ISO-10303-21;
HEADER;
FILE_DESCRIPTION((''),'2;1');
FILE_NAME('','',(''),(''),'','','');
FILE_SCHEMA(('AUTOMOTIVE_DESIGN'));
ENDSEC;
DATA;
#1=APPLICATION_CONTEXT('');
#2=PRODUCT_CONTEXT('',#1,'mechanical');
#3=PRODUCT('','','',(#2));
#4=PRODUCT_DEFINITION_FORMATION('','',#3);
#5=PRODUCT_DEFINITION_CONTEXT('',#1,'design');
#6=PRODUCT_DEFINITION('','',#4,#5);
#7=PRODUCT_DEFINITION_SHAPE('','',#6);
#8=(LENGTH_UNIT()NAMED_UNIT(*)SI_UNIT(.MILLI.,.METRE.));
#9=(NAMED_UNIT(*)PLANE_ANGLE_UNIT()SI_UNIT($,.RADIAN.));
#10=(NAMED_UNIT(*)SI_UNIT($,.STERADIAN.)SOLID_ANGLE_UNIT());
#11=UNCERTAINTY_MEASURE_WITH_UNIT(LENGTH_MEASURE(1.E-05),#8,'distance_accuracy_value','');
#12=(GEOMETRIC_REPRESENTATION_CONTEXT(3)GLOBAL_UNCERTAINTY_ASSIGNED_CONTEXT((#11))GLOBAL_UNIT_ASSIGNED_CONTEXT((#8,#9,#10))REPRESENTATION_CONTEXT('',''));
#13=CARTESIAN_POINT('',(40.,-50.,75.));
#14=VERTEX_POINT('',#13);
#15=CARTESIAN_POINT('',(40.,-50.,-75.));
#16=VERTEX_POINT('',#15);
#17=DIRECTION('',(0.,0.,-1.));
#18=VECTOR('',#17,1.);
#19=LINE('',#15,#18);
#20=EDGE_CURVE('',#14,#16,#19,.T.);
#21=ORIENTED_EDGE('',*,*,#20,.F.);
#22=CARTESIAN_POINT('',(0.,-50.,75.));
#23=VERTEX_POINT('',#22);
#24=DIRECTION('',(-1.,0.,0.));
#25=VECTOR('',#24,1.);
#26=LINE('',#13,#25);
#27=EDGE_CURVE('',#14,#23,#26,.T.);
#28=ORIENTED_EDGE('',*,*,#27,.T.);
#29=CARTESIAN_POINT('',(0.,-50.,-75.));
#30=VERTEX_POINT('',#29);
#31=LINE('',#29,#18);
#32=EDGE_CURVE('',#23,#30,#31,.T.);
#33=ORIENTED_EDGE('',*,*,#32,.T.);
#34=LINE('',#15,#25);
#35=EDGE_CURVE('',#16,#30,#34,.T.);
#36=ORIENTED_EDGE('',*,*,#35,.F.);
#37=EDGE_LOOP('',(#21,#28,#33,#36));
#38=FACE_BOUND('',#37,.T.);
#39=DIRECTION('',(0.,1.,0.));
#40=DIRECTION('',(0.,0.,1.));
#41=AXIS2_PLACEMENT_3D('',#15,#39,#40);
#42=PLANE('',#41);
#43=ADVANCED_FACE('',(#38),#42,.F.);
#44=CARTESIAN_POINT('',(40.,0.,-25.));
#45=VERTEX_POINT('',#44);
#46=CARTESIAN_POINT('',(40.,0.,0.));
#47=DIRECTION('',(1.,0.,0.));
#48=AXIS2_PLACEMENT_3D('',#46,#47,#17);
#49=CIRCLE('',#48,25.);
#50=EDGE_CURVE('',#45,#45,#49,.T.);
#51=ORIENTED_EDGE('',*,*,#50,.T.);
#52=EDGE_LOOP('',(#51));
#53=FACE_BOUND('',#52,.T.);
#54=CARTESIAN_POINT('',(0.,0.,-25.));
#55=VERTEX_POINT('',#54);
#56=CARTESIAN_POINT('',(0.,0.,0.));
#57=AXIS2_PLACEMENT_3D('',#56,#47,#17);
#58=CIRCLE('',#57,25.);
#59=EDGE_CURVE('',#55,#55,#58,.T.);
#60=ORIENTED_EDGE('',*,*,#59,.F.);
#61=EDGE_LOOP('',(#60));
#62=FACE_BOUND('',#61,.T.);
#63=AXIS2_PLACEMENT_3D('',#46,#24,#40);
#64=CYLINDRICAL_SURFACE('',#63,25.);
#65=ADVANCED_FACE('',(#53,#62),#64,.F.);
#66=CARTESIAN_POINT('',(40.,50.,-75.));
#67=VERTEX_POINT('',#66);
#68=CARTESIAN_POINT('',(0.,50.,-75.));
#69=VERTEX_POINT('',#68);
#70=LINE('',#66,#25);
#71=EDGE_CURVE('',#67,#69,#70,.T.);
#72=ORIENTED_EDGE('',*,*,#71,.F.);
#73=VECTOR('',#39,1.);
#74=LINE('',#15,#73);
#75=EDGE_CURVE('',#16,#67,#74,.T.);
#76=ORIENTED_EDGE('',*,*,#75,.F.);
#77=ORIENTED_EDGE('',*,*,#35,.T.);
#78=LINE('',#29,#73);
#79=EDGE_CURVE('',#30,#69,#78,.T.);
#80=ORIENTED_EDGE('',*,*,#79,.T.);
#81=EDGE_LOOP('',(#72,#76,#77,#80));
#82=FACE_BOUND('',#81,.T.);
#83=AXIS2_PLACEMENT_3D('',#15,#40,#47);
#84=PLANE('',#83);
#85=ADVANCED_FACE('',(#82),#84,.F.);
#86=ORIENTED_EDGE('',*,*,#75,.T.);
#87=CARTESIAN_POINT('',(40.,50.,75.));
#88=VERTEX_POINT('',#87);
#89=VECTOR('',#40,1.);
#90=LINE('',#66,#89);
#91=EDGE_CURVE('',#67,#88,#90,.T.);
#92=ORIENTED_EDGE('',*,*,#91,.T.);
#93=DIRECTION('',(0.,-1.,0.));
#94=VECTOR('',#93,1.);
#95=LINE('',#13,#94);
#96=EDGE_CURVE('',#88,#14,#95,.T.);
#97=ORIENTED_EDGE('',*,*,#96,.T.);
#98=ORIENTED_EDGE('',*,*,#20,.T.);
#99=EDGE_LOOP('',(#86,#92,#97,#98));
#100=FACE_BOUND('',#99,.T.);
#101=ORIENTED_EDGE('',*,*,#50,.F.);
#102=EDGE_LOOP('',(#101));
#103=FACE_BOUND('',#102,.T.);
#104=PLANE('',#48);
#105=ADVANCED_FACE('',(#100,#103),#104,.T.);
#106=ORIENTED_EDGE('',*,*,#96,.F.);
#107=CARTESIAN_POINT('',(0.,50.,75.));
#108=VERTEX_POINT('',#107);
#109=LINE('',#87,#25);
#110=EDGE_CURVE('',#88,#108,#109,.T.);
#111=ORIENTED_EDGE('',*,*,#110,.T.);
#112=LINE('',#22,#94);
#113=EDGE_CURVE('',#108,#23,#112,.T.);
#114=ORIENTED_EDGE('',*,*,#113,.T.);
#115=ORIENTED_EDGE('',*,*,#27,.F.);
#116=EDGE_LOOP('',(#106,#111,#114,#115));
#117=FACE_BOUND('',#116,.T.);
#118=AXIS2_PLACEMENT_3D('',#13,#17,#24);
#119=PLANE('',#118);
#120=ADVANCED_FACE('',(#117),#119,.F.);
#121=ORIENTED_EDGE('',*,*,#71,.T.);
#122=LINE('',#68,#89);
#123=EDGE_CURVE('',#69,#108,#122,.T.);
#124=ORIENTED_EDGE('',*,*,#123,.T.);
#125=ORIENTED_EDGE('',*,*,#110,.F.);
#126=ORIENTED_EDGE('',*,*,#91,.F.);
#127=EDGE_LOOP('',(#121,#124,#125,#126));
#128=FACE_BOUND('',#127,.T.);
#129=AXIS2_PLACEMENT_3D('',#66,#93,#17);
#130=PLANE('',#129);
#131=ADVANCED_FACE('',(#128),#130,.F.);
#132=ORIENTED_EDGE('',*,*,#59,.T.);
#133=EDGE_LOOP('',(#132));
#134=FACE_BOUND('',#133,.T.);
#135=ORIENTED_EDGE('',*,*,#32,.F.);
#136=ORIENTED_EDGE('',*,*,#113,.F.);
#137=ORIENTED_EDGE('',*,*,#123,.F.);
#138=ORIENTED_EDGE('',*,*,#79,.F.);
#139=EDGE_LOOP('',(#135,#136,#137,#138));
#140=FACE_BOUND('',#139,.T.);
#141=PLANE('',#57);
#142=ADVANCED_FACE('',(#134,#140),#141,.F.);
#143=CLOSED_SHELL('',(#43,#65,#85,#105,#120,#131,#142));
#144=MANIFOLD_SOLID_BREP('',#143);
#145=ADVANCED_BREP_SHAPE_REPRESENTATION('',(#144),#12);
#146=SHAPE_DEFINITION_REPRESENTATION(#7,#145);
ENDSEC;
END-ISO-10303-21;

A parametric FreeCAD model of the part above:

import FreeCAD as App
import Part
import Sketcher

V = App.Vector
Q = App.Units.Quantity


def add_polygon(sketch, points):
    """Adds a closed chain of lines whose ends are joined by coincident constraints."""
    first, n = sketch.GeometryCount, len(points)
    for a, b in zip(points, points[1:] + points[:1]):
        sketch.addGeometry(Part.LineSegment(App.Vector(*a, 0), App.Vector(*b, 0)), False)
    for i in range(n):
        sketch.addConstraint(Sketcher.Constraint("Coincident", first + i, 2, first + (i + 1) % n, 1))

doc = App.newDocument("Part")
body = doc.addObject("PartDesign::Body", "Body")

# Sketch on YZ plane
sketch1 = body.newObject("Sketcher::SketchObject", "Sketch")
sketch1.AttachmentSupport = (doc.getObject("YZ_Plane"), [""])
sketch1.MapMode = "FlatFace"
add_polygon(sketch1, [(50, 75), (-50, 75), (-50, -75), (50, -75)])  # lines 0-3
sketch1.addGeometry(Part.Circle(V(0, 0, 0), V(0, 0, 1), 25), False)  # 4
sketch1.addConstraint([
    Sketcher.Constraint("Horizontal", 0),
    Sketcher.Constraint("Vertical", 1),
    Sketcher.Constraint("Horizontal", 2),
    Sketcher.Constraint("Vertical", 3),
    Sketcher.Constraint("Coincident", 4, 3, -1, 1),
    Sketcher.Constraint("Symmetric", 0, 2, 2, 2, -1, 1),
    Sketcher.Constraint("Diameter", 4, Q("50 mm")),
    Sketcher.Constraint("DistanceX", 0, 2, 0, 1, Q("100 mm")),
    Sketcher.Constraint("DistanceY", 1, 2, 1, 1, Q("150 mm")),
])
pad1 = body.newObject("PartDesign::Pad", "Pad")
pad1.Profile = sketch1
pad1.Length = 40

doc.recompute()
